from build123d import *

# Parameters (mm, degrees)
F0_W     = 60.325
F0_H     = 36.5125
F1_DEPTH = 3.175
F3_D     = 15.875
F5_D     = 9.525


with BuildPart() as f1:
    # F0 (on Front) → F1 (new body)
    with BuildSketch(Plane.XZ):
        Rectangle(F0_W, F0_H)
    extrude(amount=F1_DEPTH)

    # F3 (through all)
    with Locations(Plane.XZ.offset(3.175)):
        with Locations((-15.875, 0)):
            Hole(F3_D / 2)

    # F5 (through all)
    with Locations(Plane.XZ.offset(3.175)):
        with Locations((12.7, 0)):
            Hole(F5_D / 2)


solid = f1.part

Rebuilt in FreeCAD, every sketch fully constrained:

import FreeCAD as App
import Part
import Sketcher
Q = App.Units.Quantity

doc = App.newDocument("Part")
body = doc.addObject("PartDesign::Body", "Body")

sketch1 = doc.addObject("Sketcher::SketchObject", "Sketch")
body.addObject(sketch1)
sketch1.AttachmentSupport = (doc.XZ_Plane, [""])
sketch1.MapMode = "FlatFace"
sketch1.addGeometry([
    Part.LineSegment(App.Vector(-30.1625, 18.25625, 0), App.Vector(-30.1625, -18.25625, 0)),
    Part.LineSegment(App.Vector(-30.1625, -18.25625, 0), App.Vector(30.1625, -18.25625, 0)),
    Part.LineSegment(App.Vector(30.1625, -18.25625, 0), App.Vector(30.1625, 18.25625, 0)),
    Part.LineSegment(App.Vector(30.1625, 18.25625, 0), App.Vector(-30.1625, 18.25625, 0)),
], False)
sketch1.addConstraint([
    Sketcher.Constraint("Coincident", 0, 2, 1, 1),
    Sketcher.Constraint("Coincident", 1, 2, 2, 1),
    Sketcher.Constraint("Coincident", 2, 2, 3, 1),
    Sketcher.Constraint("Coincident", 3, 2, 0, 1),
    Sketcher.Constraint("Vertical", 0),
    Sketcher.Constraint("Horizontal", 1),
    Sketcher.Constraint("Vertical", 2),
    Sketcher.Constraint("Horizontal", 3),
    Sketcher.Constraint("Symmetric", 0, 2, 2, 2, -1, 1),
    Sketcher.Constraint("DistanceX", 1, 1, 1, 2, Q("2.375 in")),
    Sketcher.Constraint("DistanceY", 0, 2, 0, 1, Q("1.4375 in")),
])
pad1 = doc.addObject("PartDesign::Pad", "Pad")
body.addObject(pad1)
pad1.Profile = sketch1
pad1.Length = Q("0.125 in")

sketch2 = doc.addObject("Sketcher::SketchObject", "Sketch001")
body.addObject(sketch2)
sketch2.AttachmentSupport = (doc.XZ_Plane, [""])
sketch2.MapMode = "FlatFace"
sketch2.AttachmentOffset = App.Placement(App.Vector(0, 0, 0.125 * 25.4), App.Rotation())
sketch2.addGeometry(Part.Circle(App.Vector(-15.875, 0, 0), App.Vector(0, 0, 1), 7.9375), False)
sketch2.addConstraint([
    Sketcher.Constraint("PointOnObject", 0, 3, -1),
    Sketcher.Constraint("Diameter", 0, Q("0.625 in")),
    Sketcher.Constraint("DistanceX", 0, 3, -1, 1, Q("0.625 in")),
])
doc.recompute()
hole = doc.addObject("PartDesign::Hole", "Hole")
body.addObject(hole)
hole.Profile = sketch2
hole.ThreadType = "None"
hole.Diameter = Q("0.625 in")
hole.DepthType = "ThroughAll"

sketch3 = doc.addObject("Sketcher::SketchObject", "Sketch002")
body.addObject(sketch3)
sketch3.AttachmentSupport = (doc.XZ_Plane, [""])
sketch3.MapMode = "FlatFace"
sketch3.AttachmentOffset = App.Placement(App.Vector(0, 0, 0.125 * 25.4), App.Rotation())
sketch3.addGeometry(Part.Circle(App.Vector(12.7, 0, 0), App.Vector(0, 0, 1), 4.7625), False)
sketch3.addConstraint([
    Sketcher.Constraint("PointOnObject", 0, 3, -1),
    Sketcher.Constraint("Diameter", 0, Q("0.375 in")),
    Sketcher.Constraint("DistanceX", -1, 1, 0, 3, Q("0.5 in")),
])
doc.recompute()
hole2 = doc.addObject("PartDesign::Hole", "Hole001")
body.addObject(hole2)
hole2.Profile = sketch3
hole2.ThreadType = "None"
hole2.Diameter = Q("0.375 in")
hole2.DepthType = "ThroughAll"

doc.recompute()
